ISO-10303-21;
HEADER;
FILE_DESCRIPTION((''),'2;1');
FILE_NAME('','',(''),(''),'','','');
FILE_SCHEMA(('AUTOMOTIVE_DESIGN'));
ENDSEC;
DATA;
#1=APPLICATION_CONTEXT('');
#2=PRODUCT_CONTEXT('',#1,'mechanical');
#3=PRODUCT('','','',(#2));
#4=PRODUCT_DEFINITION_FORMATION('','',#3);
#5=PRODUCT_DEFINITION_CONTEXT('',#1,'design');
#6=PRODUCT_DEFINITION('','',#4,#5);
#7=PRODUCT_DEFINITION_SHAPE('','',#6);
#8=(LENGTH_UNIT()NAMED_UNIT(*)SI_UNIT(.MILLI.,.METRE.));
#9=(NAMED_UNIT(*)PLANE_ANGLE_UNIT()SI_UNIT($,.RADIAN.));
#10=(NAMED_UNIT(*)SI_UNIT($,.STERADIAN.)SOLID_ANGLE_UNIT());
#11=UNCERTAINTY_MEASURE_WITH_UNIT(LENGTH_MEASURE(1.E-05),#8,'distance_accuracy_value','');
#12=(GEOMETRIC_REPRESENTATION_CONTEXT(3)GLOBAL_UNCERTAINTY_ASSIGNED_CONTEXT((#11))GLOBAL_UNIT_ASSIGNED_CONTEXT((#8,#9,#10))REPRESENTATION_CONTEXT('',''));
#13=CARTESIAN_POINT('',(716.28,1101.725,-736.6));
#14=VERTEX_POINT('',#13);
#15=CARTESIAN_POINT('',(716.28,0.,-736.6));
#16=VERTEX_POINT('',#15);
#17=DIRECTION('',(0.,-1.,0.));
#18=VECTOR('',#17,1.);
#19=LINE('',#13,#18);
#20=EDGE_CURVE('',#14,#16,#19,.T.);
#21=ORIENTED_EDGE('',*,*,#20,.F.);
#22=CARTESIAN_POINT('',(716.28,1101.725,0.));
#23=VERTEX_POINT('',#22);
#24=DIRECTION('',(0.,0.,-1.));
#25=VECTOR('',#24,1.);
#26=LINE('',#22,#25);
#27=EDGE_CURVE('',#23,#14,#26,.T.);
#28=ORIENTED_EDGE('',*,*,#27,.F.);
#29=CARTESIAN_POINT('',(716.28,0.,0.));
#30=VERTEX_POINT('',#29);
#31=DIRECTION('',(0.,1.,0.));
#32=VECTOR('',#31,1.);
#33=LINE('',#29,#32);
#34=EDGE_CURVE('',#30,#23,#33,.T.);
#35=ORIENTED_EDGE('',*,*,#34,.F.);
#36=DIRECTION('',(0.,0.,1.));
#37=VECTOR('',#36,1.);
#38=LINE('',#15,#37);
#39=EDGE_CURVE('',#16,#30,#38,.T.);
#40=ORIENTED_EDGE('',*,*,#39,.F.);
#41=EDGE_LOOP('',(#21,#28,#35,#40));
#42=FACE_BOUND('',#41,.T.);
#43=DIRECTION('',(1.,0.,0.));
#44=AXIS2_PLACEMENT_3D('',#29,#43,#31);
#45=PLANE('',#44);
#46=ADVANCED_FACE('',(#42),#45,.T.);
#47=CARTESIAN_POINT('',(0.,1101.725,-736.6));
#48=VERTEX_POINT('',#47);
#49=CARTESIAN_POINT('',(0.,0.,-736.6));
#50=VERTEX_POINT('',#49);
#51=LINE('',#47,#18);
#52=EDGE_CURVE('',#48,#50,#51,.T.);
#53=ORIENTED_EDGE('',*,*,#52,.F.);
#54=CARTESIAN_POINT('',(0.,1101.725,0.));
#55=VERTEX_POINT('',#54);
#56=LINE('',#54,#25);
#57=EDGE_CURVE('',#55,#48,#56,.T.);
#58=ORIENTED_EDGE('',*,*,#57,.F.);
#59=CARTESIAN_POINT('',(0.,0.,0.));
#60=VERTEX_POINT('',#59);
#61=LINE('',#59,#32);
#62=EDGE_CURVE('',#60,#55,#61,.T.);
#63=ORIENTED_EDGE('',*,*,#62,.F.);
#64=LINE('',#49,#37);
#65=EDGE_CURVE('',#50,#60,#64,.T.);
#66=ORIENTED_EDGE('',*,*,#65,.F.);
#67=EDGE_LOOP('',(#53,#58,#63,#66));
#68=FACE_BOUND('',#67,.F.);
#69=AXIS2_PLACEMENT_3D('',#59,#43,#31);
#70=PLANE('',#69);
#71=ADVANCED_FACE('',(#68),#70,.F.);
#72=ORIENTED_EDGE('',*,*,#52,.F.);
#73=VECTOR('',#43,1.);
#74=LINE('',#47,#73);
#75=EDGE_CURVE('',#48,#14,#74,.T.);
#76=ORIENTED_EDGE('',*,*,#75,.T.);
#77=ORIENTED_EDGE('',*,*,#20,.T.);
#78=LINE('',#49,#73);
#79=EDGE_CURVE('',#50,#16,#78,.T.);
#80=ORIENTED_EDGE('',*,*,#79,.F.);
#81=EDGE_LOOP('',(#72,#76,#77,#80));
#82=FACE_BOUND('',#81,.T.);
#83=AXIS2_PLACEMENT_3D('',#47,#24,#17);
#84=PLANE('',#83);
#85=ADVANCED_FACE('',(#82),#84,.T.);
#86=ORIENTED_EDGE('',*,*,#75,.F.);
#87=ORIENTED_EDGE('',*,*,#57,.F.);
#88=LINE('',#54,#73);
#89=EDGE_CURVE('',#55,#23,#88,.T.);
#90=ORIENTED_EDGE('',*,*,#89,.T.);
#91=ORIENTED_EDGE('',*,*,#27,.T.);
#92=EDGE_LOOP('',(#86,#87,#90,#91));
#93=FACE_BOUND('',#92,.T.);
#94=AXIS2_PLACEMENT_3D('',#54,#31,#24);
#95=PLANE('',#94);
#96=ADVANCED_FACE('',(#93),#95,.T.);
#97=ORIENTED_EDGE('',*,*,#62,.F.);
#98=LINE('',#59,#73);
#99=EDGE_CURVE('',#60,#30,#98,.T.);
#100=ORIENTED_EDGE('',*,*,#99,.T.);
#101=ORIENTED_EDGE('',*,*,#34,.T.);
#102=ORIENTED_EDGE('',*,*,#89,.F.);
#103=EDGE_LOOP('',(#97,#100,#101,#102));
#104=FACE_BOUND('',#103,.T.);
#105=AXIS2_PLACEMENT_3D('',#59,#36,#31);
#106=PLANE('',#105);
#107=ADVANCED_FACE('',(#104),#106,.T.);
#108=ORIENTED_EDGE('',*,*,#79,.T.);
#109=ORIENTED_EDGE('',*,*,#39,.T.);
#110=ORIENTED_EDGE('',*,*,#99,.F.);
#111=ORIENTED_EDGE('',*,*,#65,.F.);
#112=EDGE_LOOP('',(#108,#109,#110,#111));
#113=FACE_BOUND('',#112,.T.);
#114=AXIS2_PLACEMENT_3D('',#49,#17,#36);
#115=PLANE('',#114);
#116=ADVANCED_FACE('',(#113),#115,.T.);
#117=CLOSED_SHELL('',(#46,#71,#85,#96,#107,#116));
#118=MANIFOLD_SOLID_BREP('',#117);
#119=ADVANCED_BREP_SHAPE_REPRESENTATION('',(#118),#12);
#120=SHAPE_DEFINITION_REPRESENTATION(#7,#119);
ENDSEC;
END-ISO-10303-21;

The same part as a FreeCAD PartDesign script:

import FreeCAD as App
import Part
import Sketcher
from FreeCAD import Vector
Q = App.Units.Quantity

doc = App.newDocument("Part")
body = doc.addObject("PartDesign::Body", "Body")

sketch1 = body.newObject("Sketcher::SketchObject", "Sketch")
sketch1.AttachmentSupport = (doc.getObject("YZ_Plane"), [""])
sketch1.MapMode = "FlatFace"
sketch1.addGeometry(Part.LineSegment(Vector(1102, 0, 0), Vector(0, 0, 0)), False)
sketch1.addGeometry(Part.LineSegment(Vector(0, 0, 0), Vector(0, -737, 0)), False)
sketch1.addGeometry(Part.LineSegment(Vector(0, -737, 0), Vector(1102, -737, 0)), False)
sketch1.addGeometry(Part.LineSegment(Vector(1102, -737, 0), Vector(1102, 0, 0)), False)
sketch1.addConstraint(Sketcher.Constraint("Coincident", 0, 2, 1, 1))
sketch1.addConstraint(Sketcher.Constraint("Coincident", 1, 2, 2, 1))
sketch1.addConstraint(Sketcher.Constraint("Coincident", 2, 2, 3, 1))
sketch1.addConstraint(Sketcher.Constraint("Coincident", 3, 2, 0, 1))
sketch1.addConstraint(Sketcher.Constraint("Horizontal", 0))
sketch1.addConstraint(Sketcher.Constraint("Vertical", 1))
sketch1.addConstraint(Sketcher.Constraint("Horizontal", 2))
sketch1.addConstraint(Sketcher.Constraint("Vertical", 3))
sketch1.addConstraint(Sketcher.Constraint("Coincident", 0, 2, -1, 1))
sketch1.addConstraint(Sketcher.Constraint("DistanceY", 1, 2, 1, 1, Q("29 in")))
sketch1.addConstraint(Sketcher.Constraint("DistanceX", 0, 2, 0, 1, Q("43.375 in")))
pad1 = body.newObject("PartDesign::Pad", "Pad")
pad1.Profile = sketch1
pad1.Length = Q("28.2 in")

doc.recompute()
